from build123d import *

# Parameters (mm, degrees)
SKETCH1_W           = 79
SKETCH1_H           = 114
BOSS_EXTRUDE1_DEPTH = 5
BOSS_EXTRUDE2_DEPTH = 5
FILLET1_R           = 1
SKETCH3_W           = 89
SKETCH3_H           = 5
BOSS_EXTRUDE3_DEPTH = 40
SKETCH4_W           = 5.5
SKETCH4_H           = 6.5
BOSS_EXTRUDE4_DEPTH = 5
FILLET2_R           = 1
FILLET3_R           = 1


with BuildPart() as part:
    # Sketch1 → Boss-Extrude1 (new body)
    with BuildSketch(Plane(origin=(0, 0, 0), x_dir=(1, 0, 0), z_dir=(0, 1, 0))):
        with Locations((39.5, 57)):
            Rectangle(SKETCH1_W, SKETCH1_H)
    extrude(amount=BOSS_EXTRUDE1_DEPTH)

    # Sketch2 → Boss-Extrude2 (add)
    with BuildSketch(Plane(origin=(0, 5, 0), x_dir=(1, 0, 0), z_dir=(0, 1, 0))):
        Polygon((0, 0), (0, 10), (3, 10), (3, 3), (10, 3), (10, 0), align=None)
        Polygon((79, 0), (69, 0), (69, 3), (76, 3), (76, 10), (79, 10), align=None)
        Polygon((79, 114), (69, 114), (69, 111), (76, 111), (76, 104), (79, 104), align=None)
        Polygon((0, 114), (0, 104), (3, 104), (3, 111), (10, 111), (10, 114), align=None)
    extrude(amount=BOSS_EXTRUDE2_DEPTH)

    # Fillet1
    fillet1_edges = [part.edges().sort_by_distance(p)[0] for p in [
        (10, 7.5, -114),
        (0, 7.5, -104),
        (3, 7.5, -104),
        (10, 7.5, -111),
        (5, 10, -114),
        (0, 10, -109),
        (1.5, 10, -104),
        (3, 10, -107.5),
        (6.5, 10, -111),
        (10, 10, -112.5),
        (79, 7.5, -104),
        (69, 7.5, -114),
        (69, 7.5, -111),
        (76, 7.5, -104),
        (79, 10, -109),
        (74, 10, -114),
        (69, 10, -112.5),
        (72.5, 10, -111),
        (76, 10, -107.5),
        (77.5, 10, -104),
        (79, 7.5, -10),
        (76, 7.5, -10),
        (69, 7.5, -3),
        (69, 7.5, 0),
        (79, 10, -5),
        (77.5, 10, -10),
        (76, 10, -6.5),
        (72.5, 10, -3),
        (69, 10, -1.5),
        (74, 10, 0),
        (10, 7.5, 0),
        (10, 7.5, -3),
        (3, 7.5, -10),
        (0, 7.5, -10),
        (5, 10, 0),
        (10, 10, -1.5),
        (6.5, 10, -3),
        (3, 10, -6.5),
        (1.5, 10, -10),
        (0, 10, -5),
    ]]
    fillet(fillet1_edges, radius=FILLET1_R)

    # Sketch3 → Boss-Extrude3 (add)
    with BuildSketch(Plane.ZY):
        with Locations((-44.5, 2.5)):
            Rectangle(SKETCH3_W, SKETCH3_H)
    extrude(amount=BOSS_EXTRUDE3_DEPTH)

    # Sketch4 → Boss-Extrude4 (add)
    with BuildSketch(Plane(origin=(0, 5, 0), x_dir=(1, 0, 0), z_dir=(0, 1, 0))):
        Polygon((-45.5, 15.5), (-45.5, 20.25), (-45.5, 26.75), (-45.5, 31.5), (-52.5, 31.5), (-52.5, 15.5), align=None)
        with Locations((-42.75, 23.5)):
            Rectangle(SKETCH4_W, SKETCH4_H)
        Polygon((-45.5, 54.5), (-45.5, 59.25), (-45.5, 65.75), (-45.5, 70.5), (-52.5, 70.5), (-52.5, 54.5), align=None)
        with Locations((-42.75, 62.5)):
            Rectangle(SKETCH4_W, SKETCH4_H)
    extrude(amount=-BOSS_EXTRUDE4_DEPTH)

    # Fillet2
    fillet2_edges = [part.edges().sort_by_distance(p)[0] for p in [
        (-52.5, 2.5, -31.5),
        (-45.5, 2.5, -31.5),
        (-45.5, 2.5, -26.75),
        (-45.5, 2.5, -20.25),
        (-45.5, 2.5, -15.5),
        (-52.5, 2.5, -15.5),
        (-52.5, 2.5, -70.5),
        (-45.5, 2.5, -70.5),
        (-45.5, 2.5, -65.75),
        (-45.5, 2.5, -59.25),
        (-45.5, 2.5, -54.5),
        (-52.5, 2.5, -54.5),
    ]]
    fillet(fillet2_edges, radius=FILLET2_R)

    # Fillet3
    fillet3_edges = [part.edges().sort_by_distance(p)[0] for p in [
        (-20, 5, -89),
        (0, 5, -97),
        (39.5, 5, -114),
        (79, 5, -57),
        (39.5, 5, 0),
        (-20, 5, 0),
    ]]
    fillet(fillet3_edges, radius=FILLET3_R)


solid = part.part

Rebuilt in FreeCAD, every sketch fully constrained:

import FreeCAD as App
import Part
import Sketcher


def edges_at(feature, points):
    """Names of the edges that pass closest to the given points."""
    edges = feature.Shape.Edges
    near = lambda p: min(range(len(edges)), key=lambda i: edges[i].distToShape(Part.Vertex(*p))[0])
    return sorted({f"Edge{near(p) + 1}" for p in points})

doc = App.newDocument("Part")
params = doc.addObject("Spreadsheet::Sheet", "Params")
for row, (alias, value) in enumerate([
    ("sketch1_width", "79 mm"),
    ("sketch1_height", "114 mm"),
    ("pad1_length", "5 mm"),
    ("sketch2_width", "10 mm"),
    ("sketch2_width2", "7 mm"),
    ("pad2_length", "5 mm"),
    ("fillet_radius", "1 mm"),
    ("sketch3_width", "5 mm"),
    ("sketch3_height", "89 mm"),
    ("pad3_length", "40 mm"),
    ("sketch4_width", "7 mm"),
    ("sketch4_height", "16 mm"),
    ("sketch4_width2", "5.5 mm"),
    ("sketch4_height2", "6.5 mm"),
    ("pad4_length", "5 mm"),
    ("fillet2_radius", "1 mm"),
    ("fillet3_radius", "1 mm"),
], start=1):
    params.set(f"A{row}", alias)
    params.set(f"B{row}", "=" + value)
    params.setAlias(f"B{row}", alias)

body = doc.addObject("PartDesign::Body", "Body")

sketch1 = body.newObject("Sketcher::SketchObject", "Sketch")
sketch1.AttachmentSupport = (doc.getObject("XZ_Plane"), [""])
sketch1.MapMode = "FlatFace"
sketch1.addGeometry(Part.LineSegment(App.Vector(0, -114, 0), App.Vector(0, 0, 0)), False)
sketch1.addGeometry(Part.LineSegment(App.Vector(0, 0, 0), App.Vector(79, 0, 0)), False)
sketch1.addGeometry(Part.LineSegment(App.Vector(79, 0, 0), App.Vector(79, -114, 0)), False)
sketch1.addGeometry(Part.LineSegment(App.Vector(79, -114, 0), App.Vector(0, -114, 0)), False)
sketch1.addConstraint(Sketcher.Constraint("Coincident", 0, 2, 1, 1))
sketch1.addConstraint(Sketcher.Constraint("Coincident", 1, 2, 2, 1))
sketch1.addConstraint(Sketcher.Constraint("Coincident", 2, 2, 3, 1))
sketch1.addConstraint(Sketcher.Constraint("Coincident", 3, 2, 0, 1))
sketch1.addConstraint(Sketcher.Constraint("Vertical", 0))
sketch1.addConstraint(Sketcher.Constraint("Horizontal", 1))
sketch1.addConstraint(Sketcher.Constraint("Vertical", 2))
sketch1.addConstraint(Sketcher.Constraint("Horizontal", 3))
sketch1.addConstraint(Sketcher.Constraint("Coincident", 0, 2, -1, 1))
sketch1.addConstraint(Sketcher.Constraint("DistanceX", 1, 1, 1, 2, 79.0))
sketch1.addConstraint(Sketcher.Constraint("DistanceY", 0, 1, 0, 2, 114.0))
sketch1.setExpression("Constraints[9]", "Params.sketch1_width")
sketch1.setExpression("Constraints[10]", "Params.sketch1_height")
pad1 = body.newObject("PartDesign::Pad", "Pad")
pad1.Profile = sketch1
pad1.setExpression("Length", "Params.pad1_length")
pad1.Reversed = True

sketch2 = body.newObject("Sketcher::SketchObject", "Sketch001")
sketch2.AttachmentSupport = (doc.getObject("XZ_Plane"), [""])
sketch2.MapMode = "FlatFace"
sketch2.AttachmentOffset = App.Placement(App.Vector(0, 0, -5), App.Rotation())
sketch2.addGeometry(Part.LineSegment(App.Vector(0, -10, 0), App.Vector(0, 0, 0)), False)
sketch2.addGeometry(Part.LineSegment(App.Vector(0, 0, 0), App.Vector(10, 0, 0)), False)
sketch2.addGeometry(Part.LineSegment(App.Vector(10, 0, 0), App.Vector(10, -3, 0)), False)
sketch2.addGeometry(Part.LineSegment(App.Vector(10, -3, 0), App.Vector(3, -3, 0)), False)
sketch2.addGeometry(Part.LineSegment(App.Vector(3, -3, 0), App.Vector(3, -10, 0)), False)
sketch2.addGeometry(Part.LineSegment(App.Vector(3, -10, 0), App.Vector(0, -10, 0)), False)
sketch2.addGeometry(Part.LineSegment(App.Vector(69, 0, 0), App.Vector(79, 0, 0)), False)
sketch2.addGeometry(Part.LineSegment(App.Vector(79, 0, 0), App.Vector(79, -10, 0)), False)
sketch2.addGeometry(Part.LineSegment(App.Vector(79, -10, 0), App.Vector(76, -10, 0)), False)
sketch2.addGeometry(Part.LineSegment(App.Vector(76, -10, 0), App.Vector(76, -3, 0)), False)
sketch2.addGeometry(Part.LineSegment(App.Vector(76, -3, 0), App.Vector(69, -3, 0)), False)
sketch2.addGeometry(Part.LineSegment(App.Vector(69, -3, 0), App.Vector(69, 0, 0)), False)
sketch2.addGeometry(Part.LineSegment(App.Vector(79, -114, 0), App.Vector(69, -114, 0)), False)
sketch2.addGeometry(Part.LineSegment(App.Vector(69, -114, 0), App.Vector(69, -111, 0)), False)
sketch2.addGeometry(Part.LineSegment(App.Vector(69, -111, 0), App.Vector(76, -111, 0)), False)
sketch2.addGeometry(Part.LineSegment(App.Vector(76, -111, 0), App.Vector(76, -104, 0)), False)
sketch2.addGeometry(Part.LineSegment(App.Vector(76, -104, 0), App.Vector(79, -104, 0)), False)
sketch2.addGeometry(Part.LineSegment(App.Vector(79, -104, 0), App.Vector(79, -114, 0)), False)
sketch2.addGeometry(Part.LineSegment(App.Vector(0, -114, 0), App.Vector(0, -104, 0)), False)
sketch2.addGeometry(Part.LineSegment(App.Vector(0, -104, 0), App.Vector(3, -104, 0)), False)
sketch2.addGeometry(Part.LineSegment(App.Vector(3, -104, 0), App.Vector(3, -111, 0)), False)
sketch2.addGeometry(Part.LineSegment(App.Vector(3, -111, 0), App.Vector(10, -111, 0)), False)
sketch2.addGeometry(Part.LineSegment(App.Vector(10, -111, 0), App.Vector(10, -114, 0)), False)
sketch2.addGeometry(Part.LineSegment(App.Vector(10, -114, 0), App.Vector(0, -114, 0)), False)
sketch2.addConstraint(Sketcher.Constraint("Coincident", 0, 2, 1, 1))
sketch2.addConstraint(Sketcher.Constraint("Coincident", 1, 2, 2, 1))
sketch2.addConstraint(Sketcher.Constraint("Coincident", 2, 2, 3, 1))
sketch2.addConstraint(Sketcher.Constraint("Coincident", 3, 2, 4, 1))
sketch2.addConstraint(Sketcher.Constraint("Coincident", 4, 2, 5, 1))
sketch2.addConstraint(Sketcher.Constraint("Coincident", 5, 2, 0, 1))
sketch2.addConstraint(Sketcher.Constraint("Coincident", 6, 2, 7, 1))
sketch2.addConstraint(Sketcher.Constraint("Coincident", 7, 2, 8, 1))
sketch2.addConstraint(Sketcher.Constraint("Coincident", 8, 2, 9, 1))
sketch2.addConstraint(Sketcher.Constraint("Coincident", 9, 2, 10, 1))
sketch2.addConstraint(Sketcher.Constraint("Coincident", 10, 2, 11, 1))
sketch2.addConstraint(Sketcher.Constraint("Coincident", 11, 2, 6, 1))
sketch2.addConstraint(Sketcher.Constraint("Coincident", 12, 2, 13, 1))
sketch2.addConstraint(Sketcher.Constraint("Coincident", 13, 2, 14, 1))
sketch2.addConstraint(Sketcher.Constraint("Coincident", 14, 2, 15, 1))
sketch2.addConstraint(Sketcher.Constraint("Coincident", 15, 2, 16, 1))
sketch2.addConstraint(Sketcher.Constraint("Coincident", 16, 2, 17, 1))
sketch2.addConstraint(Sketcher.Constraint("Coincident", 17, 2, 12, 1))
sketch2.addConstraint(Sketcher.Constraint("Coincident", 18, 2, 19, 1))
sketch2.addConstraint(Sketcher.Constraint("Coincident", 19, 2, 20, 1))
sketch2.addConstraint(Sketcher.Constraint("Coincident", 20, 2, 21, 1))
sketch2.addConstraint(Sketcher.Constraint("Coincident", 21, 2, 22, 1))
sketch2.addConstraint(Sketcher.Constraint("Coincident", 22, 2, 23, 1))
sketch2.addConstraint(Sketcher.Constraint("Coincident", 23, 2, 18, 1))
sketch2.addConstraint(Sketcher.Constraint("Vertical", 0))
sketch2.addConstraint(Sketcher.Constraint("Horizontal", 1))
sketch2.addConstraint(Sketcher.Constraint("Vertical", 2))
sketch2.addConstraint(Sketcher.Constraint("Horizontal", 3))
sketch2.addConstraint(Sketcher.Constraint("Vertical", 4))
sketch2.addConstraint(Sketcher.Constraint("Horizontal", 5))
sketch2.addConstraint(Sketcher.Constraint("Horizontal", 6))
sketch2.addConstraint(Sketcher.Constraint("Vertical", 7))
sketch2.addConstraint(Sketcher.Constraint("Horizontal", 8))
sketch2.addConstraint(Sketcher.Constraint("Vertical", 9))
sketch2.addConstraint(Sketcher.Constraint("Horizontal", 10))
sketch2.addConstraint(Sketcher.Constraint("Vertical", 11))
sketch2.addConstraint(Sketcher.Constraint("Horizontal", 12))
sketch2.addConstraint(Sketcher.Constraint("Vertical", 13))
sketch2.addConstraint(Sketcher.Constraint("Horizontal", 14))
sketch2.addConstraint(Sketcher.Constraint("Vertical", 15))
sketch2.addConstraint(Sketcher.Constraint("Horizontal", 16))
sketch2.addConstraint(Sketcher.Constraint("Vertical", 17))
sketch2.addConstraint(Sketcher.Constraint("Vertical", 18))
sketch2.addConstraint(Sketcher.Constraint("Horizontal", 19))
sketch2.addConstraint(Sketcher.Constraint("Vertical", 20))
sketch2.addConstraint(Sketcher.Constraint("Horizontal", 21))
sketch2.addConstraint(Sketcher.Constraint("Vertical", 22))
sketch2.addConstraint(Sketcher.Constraint("Horizontal", 23))
sketch2.addConstraint(Sketcher.Constraint("Coincident", 0, 2, -1, 1))
sketch2.addConstraint(Sketcher.Constraint("PointOnObject", 6, 2, -1))
sketch2.addConstraint(Sketcher.Constraint("PointOnObject", 18, 2, -2))
sketch2.addConstraint(Sketcher.Constraint("Horizontal", 5, 2, 7, 2))
sketch2.addConstraint(Sketcher.Constraint("Horizontal", 3, 2, 9, 2))
sketch2.addConstraint(Sketcher.Constraint("Horizontal", 16, 2, 18, 2))
sketch2.addConstraint(Sketcher.Constraint("Horizontal", 14, 2, 20, 2))
sketch2.addConstraint(Sketcher.Constraint("Horizontal", 17, 2, 22, 2))
sketch2.addConstraint(Sketcher.Constraint("Vertical", 11, 2, 12, 2))
sketch2.addConstraint(Sketcher.Constraint("Vertical", 9, 2, 14, 2))
sketch2.addConstraint(Sketcher.Constraint("Vertical", 7, 2, 16, 2))
sketch2.addConstraint(Sketcher.Constraint("Vertical", 4, 2, 19, 2))
sketch2.addConstraint(Sketcher.Constraint("Vertical", 2, 2, 21, 2))
sketch2.addConstraint(Sketcher.Constraint("Equal", 1, 6))
sketch2.addConstraint(Sketcher.Constraint("Equal", 5, 8))
sketch2.addConstraint(Sketcher.Constraint("Equal", 23, 0))
sketch2.addConstraint(Sketcher.Constraint("Equal", 19, 2))
sketch2.addConstraint(Sketcher.Constraint("Equal", 11, 13))
sketch2.addConstraint(Sketcher.Constraint("Equal", 9, 15))
sketch2.addConstraint(Sketcher.Constraint("DistanceX", 1, 1, 1, 2, 10.0))
sketch2.addConstraint(Sketcher.Constraint("DistanceX", 3, 2, 3, 1, 7.0))
sketch2.addConstraint(Sketcher.Constraint("DistanceX", -1, 1, 6, 2, 79.0))
sketch2.addConstraint(Sketcher.Constraint("DistanceY", 12, 2, -1, 1, 114.0))
sketch2.setExpression("Constraints[67]", "Params.sketch2_width")
sketch2.setExpression("Constraints[68]", "Params.sketch2_width2")
pad2 = body.newObject("PartDesign::Pad", "Pad001")
pad2.Profile = sketch2
pad2.setExpression("Length", "Params.pad2_length")
pad2.Reversed = True
doc.recompute()

fillet = body.newObject("PartDesign::Fillet", "Fillet")
fillet.Base = (pad2, edges_at(pad2, [
    (10, 7.5, -114),
    (0, 7.5, -104),
    (3, 7.5, -104),
    (10, 7.5, -111),
    (5, 10, -114),
    (0, 10, -109),
    (1.5, 10, -104),
    (3, 10, -107.5),
    (6.5, 10, -111),
    (10, 10, -112.5),
    (79, 7.5, -104),
    (69, 7.5, -114),
    (69, 7.5, -111),
    (76, 7.5, -104),
    (79, 10, -109),
    (74, 10, -114),
    (69, 10, -112.5),
    (72.5, 10, -111),
    (76, 10, -107.5),
    (77.5, 10, -104),
    (79, 7.5, -10),
    (76, 7.5, -10),
    (69, 7.5, -3),
    (69, 7.5, 0),
    (79, 10, -5),
    (77.5, 10, -10),
    (76, 10, -6.5),
    (72.5, 10, -3),
    (69, 10, -1.5),
    (74, 10, 0),
    (10, 7.5, 0),
    (10, 7.5, -3),
    (3, 7.5, -10),
    (0, 7.5, -10),
    (5, 10, 0),
    (10, 10, -1.5),
    (6.5, 10, -3),
    (3, 10, -6.5),
    (1.5, 10, -10),
    (0, 10, -5),
]))
fillet.setExpression("Radius", "Params.fillet_radius")

sketch3 = body.newObject("Sketcher::SketchObject", "Sketch002")
sketch3.AttachmentSupport = (doc.getObject("YZ_Plane"), [""])
sketch3.MapMode = "FlatFace"
sketch3.addGeometry(Part.LineSegment(App.Vector(5, -89, 0), App.Vector(0, -89, 0)), False)
sketch3.addGeometry(Part.LineSegment(App.Vector(0, -89, 0), App.Vector(0, 0, 0)), False)
sketch3.addGeometry(Part.LineSegment(App.Vector(0, 0, 0), App.Vector(5, 0, 0)), False)
sketch3.addGeometry(Part.LineSegment(App.Vector(5, 0, 0), App.Vector(5, -89, 0)), False)
sketch3.addConstraint(Sketcher.Constraint("Coincident", 0, 2, 1, 1))
sketch3.addConstraint(Sketcher.Constraint("Coincident", 1, 2, 2, 1))
sketch3.addConstraint(Sketcher.Constraint("Coincident", 2, 2, 3, 1))
sketch3.addConstraint(Sketcher.Constraint("Coincident", 3, 2, 0, 1))
sketch3.addConstraint(Sketcher.Constraint("Horizontal", 0))
sketch3.addConstraint(Sketcher.Constraint("Vertical", 1))
sketch3.addConstraint(Sketcher.Constraint("Horizontal", 2))
sketch3.addConstraint(Sketcher.Constraint("Vertical", 3))
sketch3.addConstraint(Sketcher.Constraint("Coincident", 1, 2, -1, 1))
sketch3.addConstraint(Sketcher.Constraint("DistanceX", 0, 2, 0, 1, 5.0))
sketch3.addConstraint(Sketcher.Constraint("DistanceY", 1, 1, 1, 2, 89.0))
sketch3.setExpression("Constraints[9]", "Params.sketch3_width")
sketch3.setExpression("Constraints[10]", "Params.sketch3_height")
pad3 = body.newObject("PartDesign::Pad", "Pad002")
pad3.Profile = sketch3
pad3.setExpression("Length", "Params.pad3_length")
pad3.Reversed = True

sketch4 = body.newObject("Sketcher::SketchObject", "Sketch003")
sketch4.AttachmentSupport = (doc.getObject("XZ_Plane"), [""])
sketch4.MapMode = "FlatFace"
sketch4.AttachmentOffset = App.Placement(App.Vector(0, 0, -5), App.Rotation())
sketch4.addGeometry(Part.LineSegment(App.Vector(-45.5, -15.5, 0), App.Vector(-45.5, -20.25, 0)), False)
sketch4.addGeometry(Part.LineSegment(App.Vector(-45.5, -20.25, 0), App.Vector(-40, -20.25, 0)), False)
sketch4.addGeometry(Part.LineSegment(App.Vector(-40, -20.25, 0), App.Vector(-40, -26.75, 0)), False)
sketch4.addGeometry(Part.LineSegment(App.Vector(-40, -26.75, 0), App.Vector(-45.5, -26.75, 0)), False)
sketch4.addGeometry(Part.LineSegment(App.Vector(-45.5, -26.75, 0), App.Vector(-45.5, -31.5, 0)), False)
sketch4.addGeometry(Part.LineSegment(App.Vector(-45.5, -31.5, 0), App.Vector(-52.5, -31.5, 0)), False)
sketch4.addGeometry(Part.LineSegment(App.Vector(-52.5, -31.5, 0), App.Vector(-52.5, -15.5, 0)), False)
sketch4.addGeometry(Part.LineSegment(App.Vector(-52.5, -15.5, 0), App.Vector(-45.5, -15.5, 0)), False)
sketch4.addGeometry(Part.LineSegment(App.Vector(-45.5, -54.5, 0), App.Vector(-45.5, -59.25, 0)), False)
sketch4.addGeometry(Part.LineSegment(App.Vector(-45.5, -59.25, 0), App.Vector(-40, -59.25, 0)), False)
sketch4.addGeometry(Part.LineSegment(App.Vector(-40, -59.25, 0), App.Vector(-40, -65.75, 0)), False)
sketch4.addGeometry(Part.LineSegment(App.Vector(-40, -65.75, 0), App.Vector(-45.5, -65.75, 0)), False)
sketch4.addGeometry(Part.LineSegment(App.Vector(-45.5, -65.75, 0), App.Vector(-45.5, -70.5, 0)), False)
sketch4.addGeometry(Part.LineSegment(App.Vector(-45.5, -70.5, 0), App.Vector(-52.5, -70.5, 0)), False)
sketch4.addGeometry(Part.LineSegment(App.Vector(-52.5, -70.5, 0), App.Vector(-52.5, -54.5, 0)), False)
sketch4.addGeometry(Part.LineSegment(App.Vector(-52.5, -54.5, 0), App.Vector(-45.5, -54.5, 0)), False)
sketch4.addConstraint(Sketcher.Constraint("Coincident", 0, 2, 1, 1))
sketch4.addConstraint(Sketcher.Constraint("Coincident", 1, 2, 2, 1))
sketch4.addConstraint(Sketcher.Constraint("Coincident", 2, 2, 3, 1))
sketch4.addConstraint(Sketcher.Constraint("Coincident", 3, 2, 4, 1))
sketch4.addConstraint(Sketcher.Constraint("Coincident", 4, 2, 5, 1))
sketch4.addConstraint(Sketcher.Constraint("Coincident", 5, 2, 6, 1))
sketch4.addConstraint(Sketcher.Constraint("Coincident", 6, 2, 7, 1))
sketch4.addConstraint(Sketcher.Constraint("Coincident", 7, 2, 0, 1))
sketch4.addConstraint(Sketcher.Constraint("Coincident", 8, 2, 9, 1))
sketch4.addConstraint(Sketcher.Constraint("Coincident", 9, 2, 10, 1))
sketch4.addConstraint(Sketcher.Constraint("Coincident", 10, 2, 11, 1))
sketch4.addConstraint(Sketcher.Constraint("Coincident", 11, 2, 12, 1))
sketch4.addConstraint(Sketcher.Constraint("Coincident", 12, 2, 13, 1))
sketch4.addConstraint(Sketcher.Constraint("Coincident", 13, 2, 14, 1))
sketch4.addConstraint(Sketcher.Constraint("Coincident", 14, 2, 15, 1))
sketch4.addConstraint(Sketcher.Constraint("Coincident", 15, 2, 8, 1))
sketch4.addConstraint(Sketcher.Constraint("Vertical", 0))
sketch4.addConstraint(Sketcher.Constraint("Horizontal", 1))
sketch4.addConstraint(Sketcher.Constraint("Vertical", 2))
sketch4.addConstraint(Sketcher.Constraint("Horizontal", 3))
sketch4.addConstraint(Sketcher.Constraint("Vertical", 4))
sketch4.addConstraint(Sketcher.Constraint("Horizontal", 5))
sketch4.addConstraint(Sketcher.Constraint("Vertical", 6))
sketch4.addConstraint(Sketcher.Constraint("Horizontal", 7))
sketch4.addConstraint(Sketcher.Constraint("Vertical", 8))
sketch4.addConstraint(Sketcher.Constraint("Horizontal", 9))
sketch4.addConstraint(Sketcher.Constraint("Vertical", 10))
sketch4.addConstraint(Sketcher.Constraint("Horizontal", 11))
sketch4.addConstraint(Sketcher.Constraint("Vertical", 12))
sketch4.addConstraint(Sketcher.Constraint("Horizontal", 13))
sketch4.addConstraint(Sketcher.Constraint("Vertical", 14))
sketch4.addConstraint(Sketcher.Constraint("Horizontal", 15))
sketch4.addConstraint(Sketcher.Constraint("Vertical", 0, 2, 3, 2))
sketch4.addConstraint(Sketcher.Constraint("Vertical", 7, 2, 8, 2))
sketch4.addConstraint(Sketcher.Constraint("Vertical", 2, 2, 9, 2))
sketch4.addConstraint(Sketcher.Constraint("Vertical", 8, 2, 11, 2))
sketch4.addConstraint(Sketcher.Constraint("Vertical", 6, 2, 13, 2))
sketch4.addConstraint(Sketcher.Constraint("Equal", 0, 4))
sketch4.addConstraint(Sketcher.Constraint("Equal", 4, 8))
sketch4.addConstraint(Sketcher.Constraint("Equal", 2, 10))
sketch4.addConstraint(Sketcher.Constraint("Equal", 8, 12))
sketch4.addConstraint(Sketcher.Constraint("DistanceX", 5, 2, 5, 1, 7.0))
sketch4.addConstraint(Sketcher.Constraint("DistanceY", 6, 1, 6, 2, 16.0))
sketch4.addConstraint(Sketcher.Constraint("DistanceX", 1, 1, 1, 2, 5.5))
sketch4.addConstraint(Sketcher.Constraint("DistanceY", 2, 2, 2, 1, 6.5))
sketch4.addConstraint(Sketcher.Constraint("DistanceX", 1, 2, -1, 1, 40.0))
sketch4.addConstraint(Sketcher.Constraint("DistanceY", 8, 2, 0, 2, 39.0))
sketch4.addConstraint(Sketcher.Constraint("DistanceY", 4, 2, -1, 1, 31.5))
sketch4.setExpression("Constraints[41]", "Params.sketch4_width")
sketch4.setExpression("Constraints[42]", "Params.sketch4_height")
sketch4.setExpression("Constraints[43]", "Params.sketch4_width2")
sketch4.setExpression("Constraints[44]", "Params.sketch4_height2")
pad4 = body.newObject("PartDesign::Pad", "Pad003")
pad4.Profile = sketch4
pad4.setExpression("Length", "Params.pad4_length")
doc.recompute()

fillet2 = body.newObject("PartDesign::Fillet", "Fillet001")
fillet2.Base = (pad4, edges_at(pad4, [
    (-52.5, 2.5, -31.5),
    (-45.5, 2.5, -31.5),
    (-45.5, 2.5, -26.75),
    (-45.5, 2.5, -20.25),
    (-45.5, 2.5, -15.5),
    (-52.5, 2.5, -15.5),
    (-52.5, 2.5, -70.5),
    (-45.5, 2.5, -70.5),
    (-45.5, 2.5, -65.75),
    (-45.5, 2.5, -59.25),
    (-45.5, 2.5, -54.5),
    (-52.5, 2.5, -54.5),
]))
fillet2.setExpression("Radius", "Params.fillet2_radius")
doc.recompute()

fillet3 = body.newObject("PartDesign::Fillet", "Fillet002")
fillet3.Base = (fillet2, edges_at(fillet2, [
    (-20, 5, -89),
    (0, 5, -97),
    (39.5, 5, -114),
    (79, 5, -57),
    (39.5, 5, 0),
    (-20, 5, 0),
]))
fillet3.setExpression("Radius", "Params.fillet3_radius")

doc.recompute()
